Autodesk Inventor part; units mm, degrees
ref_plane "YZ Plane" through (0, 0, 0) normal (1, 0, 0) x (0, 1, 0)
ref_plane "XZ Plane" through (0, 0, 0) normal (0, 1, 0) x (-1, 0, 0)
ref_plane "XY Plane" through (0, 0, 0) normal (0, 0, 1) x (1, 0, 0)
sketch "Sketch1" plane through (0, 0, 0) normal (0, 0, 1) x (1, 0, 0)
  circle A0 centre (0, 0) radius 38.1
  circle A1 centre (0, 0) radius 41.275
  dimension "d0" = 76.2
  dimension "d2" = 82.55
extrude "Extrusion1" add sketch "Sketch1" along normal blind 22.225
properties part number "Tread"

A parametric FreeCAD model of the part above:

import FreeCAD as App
import Part
import Sketcher

V = App.Vector
Q = App.Units.Quantity

doc = App.newDocument("Part")
body = doc.addObject("PartDesign::Body", "Body")

# Sketch on XY plane
sketch1 = body.newObject("Sketcher::SketchObject", "Sketch")
sketch1.AttachmentSupport = (doc.getObject("XY_Plane"), [""])
sketch1.MapMode = "FlatFace"
sketch1.addGeometry([
    Part.Circle(V(0, 0, 0), V(0, 0, 1), 41),
    Part.Circle(V(0, 0, 0), V(0, 0, 1), 38),
], False)
sketch1.addConstraint([
    Sketcher.Constraint("Coincident", 0, 3, -1, 1),
    Sketcher.Constraint("Coincident", 1, 3, -1, 1),
    Sketcher.Constraint("Diameter", 1, Q("3 in")),
    Sketcher.Constraint("Diameter", 0, Q("3.25 in")),
])
pad1 = body.newObject("PartDesign::Pad", "Pad")
pad1.Profile = sketch1
pad1.Length = Q("0.875 in")

doc.recompute()
